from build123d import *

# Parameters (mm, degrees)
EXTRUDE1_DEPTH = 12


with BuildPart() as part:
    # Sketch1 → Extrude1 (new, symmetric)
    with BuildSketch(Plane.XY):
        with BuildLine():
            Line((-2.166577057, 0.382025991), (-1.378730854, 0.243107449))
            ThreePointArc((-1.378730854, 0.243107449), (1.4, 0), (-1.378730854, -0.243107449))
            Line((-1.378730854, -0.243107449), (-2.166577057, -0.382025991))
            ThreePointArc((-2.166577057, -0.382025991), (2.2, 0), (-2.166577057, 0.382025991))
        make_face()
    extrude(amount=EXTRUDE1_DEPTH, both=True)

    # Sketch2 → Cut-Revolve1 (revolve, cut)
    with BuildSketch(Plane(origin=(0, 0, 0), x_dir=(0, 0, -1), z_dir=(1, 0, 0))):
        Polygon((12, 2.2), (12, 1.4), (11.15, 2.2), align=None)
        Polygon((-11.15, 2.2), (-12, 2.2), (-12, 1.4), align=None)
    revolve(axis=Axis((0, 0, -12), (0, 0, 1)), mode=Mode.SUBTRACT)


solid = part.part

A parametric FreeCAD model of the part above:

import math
import FreeCAD as App
import Part
import Sketcher

V = App.Vector
Q = App.Units.Quantity

doc = App.newDocument("Part")
params = doc.addObject("Spreadsheet::Sheet", "Params")
for row, (alias, value) in enumerate([
    ("sketch1_radius", "1.4 mm"),
    ("sketch1_radius2", "2.2 mm"),
    ("pad1_length", "24 mm"),
    ("sketch2_width", "0.8 mm"),
    ("sketch2_height", "0.85 mm"),
    ("groove_angle", "360 deg"),
], start=1):
    params.set(f"A{row}", alias)
    params.set(f"B{row}", "=" + value)
    params.setAlias(f"B{row}", alias)

body = doc.addObject("PartDesign::Body", "Body")

sketch1 = doc.addObject("Sketcher::SketchObject", "Sketch")
body.addObject(sketch1)
sketch1.AttachmentSupport = (doc.XY_Plane, [""])
sketch1.MapMode = "FlatFace"
sketch1.addGeometry([
    Part.LineSegment(V(-2.166577, 0.382026, 0), V(-1.378731, 0.243107, 0)),
    Part.ArcOfCircle(Part.Circle(V(0, 0, 0), V(0, 0, 1), 1.4), math.radians(-170), math.radians(170)),
    Part.LineSegment(V(-1.378731, -0.243107, 0), V(-2.166577, -0.382026, 0)),
    Part.ArcOfCircle(Part.Circle(V(0, 0, 0), V(0, 0, 1), 2.2), math.radians(-170), math.radians(170)),
], False)
sketch1.addConstraint([
    Sketcher.Constraint("Coincident", 0, 2, 1, 2),
    Sketcher.Constraint("Coincident", 1, 1, 2, 1),
    Sketcher.Constraint("Coincident", 2, 2, 3, 1),
    Sketcher.Constraint("Coincident", 3, 2, 0, 1),
    Sketcher.Constraint("Coincident", 1, 3, -1, 1),
    Sketcher.Constraint("Coincident", 3, 3, -1, 1),
    Sketcher.Constraint("Vertical", 0, 2, 1, 1),
    Sketcher.Constraint("Vertical", 2, 2, 3, 2),
    Sketcher.Constraint("Radius", 1, 1.4),
    Sketcher.Constraint("Radius", 3, 2.2),
    Sketcher.Constraint("Angle", 0, Q("-10 deg")),
    Sketcher.Constraint("DistanceX", 0, 2, -1, 1, 1.378731),
])
sketch1.setExpression("Constraints[8]", "Params.sketch1_radius")
sketch1.setExpression("Constraints[9]", "Params.sketch1_radius2")
pad1 = doc.addObject("PartDesign::Pad", "Pad")
body.addObject(pad1)
pad1.Profile = sketch1
pad1.setExpression("Length", "Params.pad1_length")
pad1.Midplane = True

sketch2 = doc.addObject("Sketcher::SketchObject", "Sketch001")
body.addObject(sketch2)
sketch2.AttachmentSupport = (doc.YZ_Plane, [""])
sketch2.MapMode = "FlatFace"
sketch2.addGeometry([
    Part.LineSegment(V(1.4, -12, 0), V(2.2, -12, 0)),
    Part.LineSegment(V(2.2, -12, 0), V(2.2, -11.15, 0)),
    Part.LineSegment(V(2.2, -11.15, 0), V(1.4, -12, 0)),
    Part.LineSegment(V(2.2, 11.15, 0), V(2.2, 12, 0)),
    Part.LineSegment(V(2.2, 12, 0), V(1.4, 12, 0)),
    Part.LineSegment(V(1.4, 12, 0), V(2.2, 11.15, 0)),
], False)
sketch2.addConstraint([
    Sketcher.Constraint("Coincident", 0, 2, 1, 1),
    Sketcher.Constraint("Coincident", 1, 2, 2, 1),
    Sketcher.Constraint("Coincident", 2, 2, 0, 1),
    Sketcher.Constraint("Coincident", 3, 2, 4, 1),
    Sketcher.Constraint("Coincident", 4, 2, 5, 1),
    Sketcher.Constraint("Coincident", 5, 2, 3, 1),
    Sketcher.Constraint("Horizontal", 0),
    Sketcher.Constraint("Vertical", 1),
    Sketcher.Constraint("Vertical", 3),
    Sketcher.Constraint("Horizontal", 4),
    Sketcher.Constraint("Symmetric", 0, 2, 3, 2, -1),
    Sketcher.Constraint("Vertical", 2, 2, 4, 2),
    Sketcher.Constraint("Equal", 1, 3),
    Sketcher.Constraint("DistanceX", 0, 1, 0, 2, 0.8),
    Sketcher.Constraint("DistanceY", 0, 2, -1, 1, 12.0),
    Sketcher.Constraint("DistanceY", 1, 1, 1, 2, 0.85),
    Sketcher.Constraint("DistanceX", -1, 1, 0, 2, 2.2),
])
sketch2.setExpression("Constraints[13]", "Params.sketch2_width")
sketch2.setExpression("Constraints[15]", "Params.sketch2_height")
groove = doc.addObject("PartDesign::Groove", "Groove")
body.addObject(groove)
groove.Profile = sketch2
groove.ReferenceAxis = (sketch2, ["V_Axis"])
groove.setExpression("Angle", "Params.groove_angle")

doc.recompute()
